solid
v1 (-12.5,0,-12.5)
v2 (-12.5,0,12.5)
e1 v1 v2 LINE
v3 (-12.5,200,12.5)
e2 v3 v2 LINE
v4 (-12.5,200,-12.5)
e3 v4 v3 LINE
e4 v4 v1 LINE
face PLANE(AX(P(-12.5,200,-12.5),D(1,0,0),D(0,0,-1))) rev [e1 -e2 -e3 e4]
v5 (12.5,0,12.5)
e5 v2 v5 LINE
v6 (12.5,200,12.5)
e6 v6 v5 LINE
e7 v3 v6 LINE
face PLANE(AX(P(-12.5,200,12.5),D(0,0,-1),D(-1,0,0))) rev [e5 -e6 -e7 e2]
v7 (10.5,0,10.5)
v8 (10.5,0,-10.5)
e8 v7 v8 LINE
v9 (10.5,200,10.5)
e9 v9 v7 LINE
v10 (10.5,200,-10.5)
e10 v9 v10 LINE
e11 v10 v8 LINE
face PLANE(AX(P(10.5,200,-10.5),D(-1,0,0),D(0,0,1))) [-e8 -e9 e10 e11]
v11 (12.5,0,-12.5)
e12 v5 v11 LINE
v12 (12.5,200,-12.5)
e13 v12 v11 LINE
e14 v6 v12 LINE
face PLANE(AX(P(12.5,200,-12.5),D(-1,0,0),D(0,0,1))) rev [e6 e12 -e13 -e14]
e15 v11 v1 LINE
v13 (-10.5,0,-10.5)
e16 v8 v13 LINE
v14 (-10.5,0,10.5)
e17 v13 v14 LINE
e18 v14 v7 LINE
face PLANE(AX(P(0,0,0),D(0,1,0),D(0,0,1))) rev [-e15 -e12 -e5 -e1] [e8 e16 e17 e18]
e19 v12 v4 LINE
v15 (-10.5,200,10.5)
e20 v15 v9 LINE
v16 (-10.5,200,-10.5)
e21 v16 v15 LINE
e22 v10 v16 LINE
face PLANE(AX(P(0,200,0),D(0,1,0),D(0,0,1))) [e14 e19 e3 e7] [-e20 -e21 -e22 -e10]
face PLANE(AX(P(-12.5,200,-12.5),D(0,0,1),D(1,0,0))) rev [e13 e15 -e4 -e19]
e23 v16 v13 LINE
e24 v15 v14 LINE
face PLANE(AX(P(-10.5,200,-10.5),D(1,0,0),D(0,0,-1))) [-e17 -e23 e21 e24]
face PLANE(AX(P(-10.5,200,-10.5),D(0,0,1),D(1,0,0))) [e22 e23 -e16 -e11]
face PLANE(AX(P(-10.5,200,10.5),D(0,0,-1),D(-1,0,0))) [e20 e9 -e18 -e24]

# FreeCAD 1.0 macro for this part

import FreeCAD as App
import Part
import Sketcher
from FreeCAD import Vector

doc = App.newDocument("Part")
body = doc.addObject("PartDesign::Body", "Body")

# Sketch on XZ plane
sketch1 = body.newObject("Sketcher::SketchObject", "Sketch")
sketch1.AttachmentSupport = (doc.getObject("XZ_Plane"), [""])
sketch1.MapMode = "FlatFace"
sketch1.addGeometry(Part.LineSegment(Vector(-12.5, -12.5, 0), Vector(-12.5, 12.5, 0)), False)
sketch1.addGeometry(Part.LineSegment(Vector(-12.5, 12.5, 0), Vector(12.5, 12.5, 0)), False)
sketch1.addGeometry(Part.LineSegment(Vector(12.5, 12.5, 0), Vector(12.5, -12.5, 0)), False)
sketch1.addGeometry(Part.LineSegment(Vector(12.5, -12.5, 0), Vector(-12.5, -12.5, 0)), False)
sketch1.addGeometry(Part.LineSegment(Vector(10.5, 10.5, 0), Vector(-10.5, 10.5, 0)), False)
sketch1.addGeometry(Part.LineSegment(Vector(-10.5, 10.5, 0), Vector(-10.5, -10.5, 0)), False)
sketch1.addGeometry(Part.LineSegment(Vector(-10.5, -10.5, 0), Vector(10.5, -10.5, 0)), False)
sketch1.addGeometry(Part.LineSegment(Vector(10.5, -10.5, 0), Vector(10.5, 10.5, 0)), False)
sketch1.addConstraint(Sketcher.Constraint("Coincident", 0, 2, 1, 1))
sketch1.addConstraint(Sketcher.Constraint("Coincident", 1, 2, 2, 1))
sketch1.addConstraint(Sketcher.Constraint("Coincident", 2, 2, 3, 1))
sketch1.addConstraint(Sketcher.Constraint("Coincident", 3, 2, 0, 1))
sketch1.addConstraint(Sketcher.Constraint("Coincident", 4, 2, 5, 1))
sketch1.addConstraint(Sketcher.Constraint("Coincident", 5, 2, 6, 1))
sketch1.addConstraint(Sketcher.Constraint("Coincident", 6, 2, 7, 1))
sketch1.addConstraint(Sketcher.Constraint("Coincident", 7, 2, 4, 1))
sketch1.addConstraint(Sketcher.Constraint("Vertical", 0))
sketch1.addConstraint(Sketcher.Constraint("Horizontal", 1))
sketch1.addConstraint(Sketcher.Constraint("Vertical", 2))
sketch1.addConstraint(Sketcher.Constraint("Horizontal", 3))
sketch1.addConstraint(Sketcher.Constraint("Horizontal", 4))
sketch1.addConstraint(Sketcher.Constraint("Vertical", 5))
sketch1.addConstraint(Sketcher.Constraint("Horizontal", 6))
sketch1.addConstraint(Sketcher.Constraint("Vertical", 7))
sketch1.addConstraint(Sketcher.Constraint("Symmetric", 0, 2, 2, 2, -1, 1))
sketch1.addConstraint(Sketcher.Constraint("Symmetric", 4, 2, 6, 2, -1, 1))
sketch1.addConstraint(Sketcher.Constraint("Equal", 3, 0))
sketch1.addConstraint(Sketcher.Constraint("Equal", 6, 5))
sketch1.addConstraint(Sketcher.Constraint("DistanceX", 1, 1, 1, 2, 25.0))
sketch1.addConstraint(Sketcher.Constraint("DistanceX", 4, 2, 4, 1, 21.0))
pad1 = body.newObject("PartDesign::Pad", "Pad")
pad1.Profile = sketch1
pad1.Length = 200
pad1.Reversed = True

doc.recompute()
